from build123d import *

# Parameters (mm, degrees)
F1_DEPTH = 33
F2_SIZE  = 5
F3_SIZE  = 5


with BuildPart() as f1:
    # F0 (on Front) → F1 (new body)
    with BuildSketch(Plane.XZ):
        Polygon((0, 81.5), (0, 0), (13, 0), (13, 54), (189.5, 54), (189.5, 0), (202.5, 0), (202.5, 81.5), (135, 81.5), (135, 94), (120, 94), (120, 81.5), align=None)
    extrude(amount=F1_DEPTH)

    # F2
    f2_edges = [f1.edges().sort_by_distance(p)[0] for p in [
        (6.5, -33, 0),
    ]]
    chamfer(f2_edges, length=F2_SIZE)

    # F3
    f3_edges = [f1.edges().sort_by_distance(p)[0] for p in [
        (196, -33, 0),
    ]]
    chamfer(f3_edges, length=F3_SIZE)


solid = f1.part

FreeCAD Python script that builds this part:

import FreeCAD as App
import Part
import Sketcher

V = App.Vector
Q = App.Units.Quantity


def edges_at(feature, points):
    """Names of the edges that pass closest to the given points."""
    edges = feature.Shape.Edges
    near = lambda p: min(range(len(edges)), key=lambda i: edges[i].distToShape(Part.Vertex(*p))[0])
    return sorted({f"Edge{near(p) + 1}" for p in points})


def add_polygon(sketch, points):
    """Adds a closed chain of lines whose ends are joined by coincident constraints."""
    first, n = sketch.GeometryCount, len(points)
    for a, b in zip(points, points[1:] + points[:1]):
        sketch.addGeometry(Part.LineSegment(App.Vector(*a, 0), App.Vector(*b, 0)), False)
    for i in range(n):
        sketch.addConstraint(Sketcher.Constraint("Coincident", first + i, 2, first + (i + 1) % n, 1))

doc = App.newDocument("Part")
body = doc.addObject("PartDesign::Body", "Body")

sketch1 = body.newObject("Sketcher::SketchObject", "Sketch")
sketch1.AttachmentSupport = (doc.getObject("XZ_Plane"), [""])
sketch1.MapMode = "FlatFace"
add_polygon(sketch1, [(0, 82), (0, 0), (13, 0), (13, 54), (190, 54), (190, 0), (202, 0), (202, 82), (135, 82), (135, 94), (120, 94), (120, 82)])
sketch1.addConstraint(Sketcher.Constraint("Vertical", 0))
sketch1.addConstraint(Sketcher.Constraint("Horizontal", 1))
sketch1.addConstraint(Sketcher.Constraint("Vertical", 2))
sketch1.addConstraint(Sketcher.Constraint("Horizontal", 3))
sketch1.addConstraint(Sketcher.Constraint("Vertical", 4))
sketch1.addConstraint(Sketcher.Constraint("Horizontal", 5))
sketch1.addConstraint(Sketcher.Constraint("Vertical", 6))
sketch1.addConstraint(Sketcher.Constraint("Horizontal", 7))
sketch1.addConstraint(Sketcher.Constraint("Vertical", 8))
sketch1.addConstraint(Sketcher.Constraint("Horizontal", 9))
sketch1.addConstraint(Sketcher.Constraint("Vertical", 10))
sketch1.addConstraint(Sketcher.Constraint("Horizontal", 11))
sketch1.addConstraint(Sketcher.Constraint("Coincident", 0, 2, -1, 1))
sketch1.addConstraint(Sketcher.Constraint("PointOnObject", 4, 2, -1))
sketch1.addConstraint(Sketcher.Constraint("Horizontal", 7, 2, 10, 2))
sketch1.addConstraint(Sketcher.Constraint("Equal", 1, 5))
sketch1.addConstraint(Sketcher.Constraint("DistanceX", 1, 1, 1, 2, Q("13 mm")))
sketch1.addConstraint(Sketcher.Constraint("DistanceX", 9, 2, 9, 1, Q("15 mm")))
sketch1.addConstraint(Sketcher.Constraint("DistanceX", 11, 2, 11, 1, Q("120 mm")))
sketch1.addConstraint(Sketcher.Constraint("DistanceY", 2, 1, 2, 2, Q("54 mm")))
sketch1.addConstraint(Sketcher.Constraint("DistanceX", 3, 1, 3, 2, Q("176.5 mm")))
sketch1.addConstraint(Sketcher.Constraint("DistanceY", 0, 2, 0, 1, Q("81.5 mm")))
sketch1.addConstraint(Sketcher.Constraint("DistanceY", 8, 1, 8, 2, Q("12.5 mm")))
pad1 = body.newObject("PartDesign::Pad", "Pad")
pad1.Profile = sketch1
pad1.Length = 33
doc.recompute()

chamfer = body.newObject("PartDesign::Chamfer", "Chamfer")
chamfer.Base = (pad1, edges_at(pad1, [(6.5, -33, 0)]))
chamfer.Size = 5
doc.recompute()

chamfer2 = body.newObject("PartDesign::Chamfer", "Chamfer001")
chamfer2.Base = (chamfer, edges_at(chamfer, [(196, -33, 0)]))
chamfer2.Size = 5

doc.recompute()
